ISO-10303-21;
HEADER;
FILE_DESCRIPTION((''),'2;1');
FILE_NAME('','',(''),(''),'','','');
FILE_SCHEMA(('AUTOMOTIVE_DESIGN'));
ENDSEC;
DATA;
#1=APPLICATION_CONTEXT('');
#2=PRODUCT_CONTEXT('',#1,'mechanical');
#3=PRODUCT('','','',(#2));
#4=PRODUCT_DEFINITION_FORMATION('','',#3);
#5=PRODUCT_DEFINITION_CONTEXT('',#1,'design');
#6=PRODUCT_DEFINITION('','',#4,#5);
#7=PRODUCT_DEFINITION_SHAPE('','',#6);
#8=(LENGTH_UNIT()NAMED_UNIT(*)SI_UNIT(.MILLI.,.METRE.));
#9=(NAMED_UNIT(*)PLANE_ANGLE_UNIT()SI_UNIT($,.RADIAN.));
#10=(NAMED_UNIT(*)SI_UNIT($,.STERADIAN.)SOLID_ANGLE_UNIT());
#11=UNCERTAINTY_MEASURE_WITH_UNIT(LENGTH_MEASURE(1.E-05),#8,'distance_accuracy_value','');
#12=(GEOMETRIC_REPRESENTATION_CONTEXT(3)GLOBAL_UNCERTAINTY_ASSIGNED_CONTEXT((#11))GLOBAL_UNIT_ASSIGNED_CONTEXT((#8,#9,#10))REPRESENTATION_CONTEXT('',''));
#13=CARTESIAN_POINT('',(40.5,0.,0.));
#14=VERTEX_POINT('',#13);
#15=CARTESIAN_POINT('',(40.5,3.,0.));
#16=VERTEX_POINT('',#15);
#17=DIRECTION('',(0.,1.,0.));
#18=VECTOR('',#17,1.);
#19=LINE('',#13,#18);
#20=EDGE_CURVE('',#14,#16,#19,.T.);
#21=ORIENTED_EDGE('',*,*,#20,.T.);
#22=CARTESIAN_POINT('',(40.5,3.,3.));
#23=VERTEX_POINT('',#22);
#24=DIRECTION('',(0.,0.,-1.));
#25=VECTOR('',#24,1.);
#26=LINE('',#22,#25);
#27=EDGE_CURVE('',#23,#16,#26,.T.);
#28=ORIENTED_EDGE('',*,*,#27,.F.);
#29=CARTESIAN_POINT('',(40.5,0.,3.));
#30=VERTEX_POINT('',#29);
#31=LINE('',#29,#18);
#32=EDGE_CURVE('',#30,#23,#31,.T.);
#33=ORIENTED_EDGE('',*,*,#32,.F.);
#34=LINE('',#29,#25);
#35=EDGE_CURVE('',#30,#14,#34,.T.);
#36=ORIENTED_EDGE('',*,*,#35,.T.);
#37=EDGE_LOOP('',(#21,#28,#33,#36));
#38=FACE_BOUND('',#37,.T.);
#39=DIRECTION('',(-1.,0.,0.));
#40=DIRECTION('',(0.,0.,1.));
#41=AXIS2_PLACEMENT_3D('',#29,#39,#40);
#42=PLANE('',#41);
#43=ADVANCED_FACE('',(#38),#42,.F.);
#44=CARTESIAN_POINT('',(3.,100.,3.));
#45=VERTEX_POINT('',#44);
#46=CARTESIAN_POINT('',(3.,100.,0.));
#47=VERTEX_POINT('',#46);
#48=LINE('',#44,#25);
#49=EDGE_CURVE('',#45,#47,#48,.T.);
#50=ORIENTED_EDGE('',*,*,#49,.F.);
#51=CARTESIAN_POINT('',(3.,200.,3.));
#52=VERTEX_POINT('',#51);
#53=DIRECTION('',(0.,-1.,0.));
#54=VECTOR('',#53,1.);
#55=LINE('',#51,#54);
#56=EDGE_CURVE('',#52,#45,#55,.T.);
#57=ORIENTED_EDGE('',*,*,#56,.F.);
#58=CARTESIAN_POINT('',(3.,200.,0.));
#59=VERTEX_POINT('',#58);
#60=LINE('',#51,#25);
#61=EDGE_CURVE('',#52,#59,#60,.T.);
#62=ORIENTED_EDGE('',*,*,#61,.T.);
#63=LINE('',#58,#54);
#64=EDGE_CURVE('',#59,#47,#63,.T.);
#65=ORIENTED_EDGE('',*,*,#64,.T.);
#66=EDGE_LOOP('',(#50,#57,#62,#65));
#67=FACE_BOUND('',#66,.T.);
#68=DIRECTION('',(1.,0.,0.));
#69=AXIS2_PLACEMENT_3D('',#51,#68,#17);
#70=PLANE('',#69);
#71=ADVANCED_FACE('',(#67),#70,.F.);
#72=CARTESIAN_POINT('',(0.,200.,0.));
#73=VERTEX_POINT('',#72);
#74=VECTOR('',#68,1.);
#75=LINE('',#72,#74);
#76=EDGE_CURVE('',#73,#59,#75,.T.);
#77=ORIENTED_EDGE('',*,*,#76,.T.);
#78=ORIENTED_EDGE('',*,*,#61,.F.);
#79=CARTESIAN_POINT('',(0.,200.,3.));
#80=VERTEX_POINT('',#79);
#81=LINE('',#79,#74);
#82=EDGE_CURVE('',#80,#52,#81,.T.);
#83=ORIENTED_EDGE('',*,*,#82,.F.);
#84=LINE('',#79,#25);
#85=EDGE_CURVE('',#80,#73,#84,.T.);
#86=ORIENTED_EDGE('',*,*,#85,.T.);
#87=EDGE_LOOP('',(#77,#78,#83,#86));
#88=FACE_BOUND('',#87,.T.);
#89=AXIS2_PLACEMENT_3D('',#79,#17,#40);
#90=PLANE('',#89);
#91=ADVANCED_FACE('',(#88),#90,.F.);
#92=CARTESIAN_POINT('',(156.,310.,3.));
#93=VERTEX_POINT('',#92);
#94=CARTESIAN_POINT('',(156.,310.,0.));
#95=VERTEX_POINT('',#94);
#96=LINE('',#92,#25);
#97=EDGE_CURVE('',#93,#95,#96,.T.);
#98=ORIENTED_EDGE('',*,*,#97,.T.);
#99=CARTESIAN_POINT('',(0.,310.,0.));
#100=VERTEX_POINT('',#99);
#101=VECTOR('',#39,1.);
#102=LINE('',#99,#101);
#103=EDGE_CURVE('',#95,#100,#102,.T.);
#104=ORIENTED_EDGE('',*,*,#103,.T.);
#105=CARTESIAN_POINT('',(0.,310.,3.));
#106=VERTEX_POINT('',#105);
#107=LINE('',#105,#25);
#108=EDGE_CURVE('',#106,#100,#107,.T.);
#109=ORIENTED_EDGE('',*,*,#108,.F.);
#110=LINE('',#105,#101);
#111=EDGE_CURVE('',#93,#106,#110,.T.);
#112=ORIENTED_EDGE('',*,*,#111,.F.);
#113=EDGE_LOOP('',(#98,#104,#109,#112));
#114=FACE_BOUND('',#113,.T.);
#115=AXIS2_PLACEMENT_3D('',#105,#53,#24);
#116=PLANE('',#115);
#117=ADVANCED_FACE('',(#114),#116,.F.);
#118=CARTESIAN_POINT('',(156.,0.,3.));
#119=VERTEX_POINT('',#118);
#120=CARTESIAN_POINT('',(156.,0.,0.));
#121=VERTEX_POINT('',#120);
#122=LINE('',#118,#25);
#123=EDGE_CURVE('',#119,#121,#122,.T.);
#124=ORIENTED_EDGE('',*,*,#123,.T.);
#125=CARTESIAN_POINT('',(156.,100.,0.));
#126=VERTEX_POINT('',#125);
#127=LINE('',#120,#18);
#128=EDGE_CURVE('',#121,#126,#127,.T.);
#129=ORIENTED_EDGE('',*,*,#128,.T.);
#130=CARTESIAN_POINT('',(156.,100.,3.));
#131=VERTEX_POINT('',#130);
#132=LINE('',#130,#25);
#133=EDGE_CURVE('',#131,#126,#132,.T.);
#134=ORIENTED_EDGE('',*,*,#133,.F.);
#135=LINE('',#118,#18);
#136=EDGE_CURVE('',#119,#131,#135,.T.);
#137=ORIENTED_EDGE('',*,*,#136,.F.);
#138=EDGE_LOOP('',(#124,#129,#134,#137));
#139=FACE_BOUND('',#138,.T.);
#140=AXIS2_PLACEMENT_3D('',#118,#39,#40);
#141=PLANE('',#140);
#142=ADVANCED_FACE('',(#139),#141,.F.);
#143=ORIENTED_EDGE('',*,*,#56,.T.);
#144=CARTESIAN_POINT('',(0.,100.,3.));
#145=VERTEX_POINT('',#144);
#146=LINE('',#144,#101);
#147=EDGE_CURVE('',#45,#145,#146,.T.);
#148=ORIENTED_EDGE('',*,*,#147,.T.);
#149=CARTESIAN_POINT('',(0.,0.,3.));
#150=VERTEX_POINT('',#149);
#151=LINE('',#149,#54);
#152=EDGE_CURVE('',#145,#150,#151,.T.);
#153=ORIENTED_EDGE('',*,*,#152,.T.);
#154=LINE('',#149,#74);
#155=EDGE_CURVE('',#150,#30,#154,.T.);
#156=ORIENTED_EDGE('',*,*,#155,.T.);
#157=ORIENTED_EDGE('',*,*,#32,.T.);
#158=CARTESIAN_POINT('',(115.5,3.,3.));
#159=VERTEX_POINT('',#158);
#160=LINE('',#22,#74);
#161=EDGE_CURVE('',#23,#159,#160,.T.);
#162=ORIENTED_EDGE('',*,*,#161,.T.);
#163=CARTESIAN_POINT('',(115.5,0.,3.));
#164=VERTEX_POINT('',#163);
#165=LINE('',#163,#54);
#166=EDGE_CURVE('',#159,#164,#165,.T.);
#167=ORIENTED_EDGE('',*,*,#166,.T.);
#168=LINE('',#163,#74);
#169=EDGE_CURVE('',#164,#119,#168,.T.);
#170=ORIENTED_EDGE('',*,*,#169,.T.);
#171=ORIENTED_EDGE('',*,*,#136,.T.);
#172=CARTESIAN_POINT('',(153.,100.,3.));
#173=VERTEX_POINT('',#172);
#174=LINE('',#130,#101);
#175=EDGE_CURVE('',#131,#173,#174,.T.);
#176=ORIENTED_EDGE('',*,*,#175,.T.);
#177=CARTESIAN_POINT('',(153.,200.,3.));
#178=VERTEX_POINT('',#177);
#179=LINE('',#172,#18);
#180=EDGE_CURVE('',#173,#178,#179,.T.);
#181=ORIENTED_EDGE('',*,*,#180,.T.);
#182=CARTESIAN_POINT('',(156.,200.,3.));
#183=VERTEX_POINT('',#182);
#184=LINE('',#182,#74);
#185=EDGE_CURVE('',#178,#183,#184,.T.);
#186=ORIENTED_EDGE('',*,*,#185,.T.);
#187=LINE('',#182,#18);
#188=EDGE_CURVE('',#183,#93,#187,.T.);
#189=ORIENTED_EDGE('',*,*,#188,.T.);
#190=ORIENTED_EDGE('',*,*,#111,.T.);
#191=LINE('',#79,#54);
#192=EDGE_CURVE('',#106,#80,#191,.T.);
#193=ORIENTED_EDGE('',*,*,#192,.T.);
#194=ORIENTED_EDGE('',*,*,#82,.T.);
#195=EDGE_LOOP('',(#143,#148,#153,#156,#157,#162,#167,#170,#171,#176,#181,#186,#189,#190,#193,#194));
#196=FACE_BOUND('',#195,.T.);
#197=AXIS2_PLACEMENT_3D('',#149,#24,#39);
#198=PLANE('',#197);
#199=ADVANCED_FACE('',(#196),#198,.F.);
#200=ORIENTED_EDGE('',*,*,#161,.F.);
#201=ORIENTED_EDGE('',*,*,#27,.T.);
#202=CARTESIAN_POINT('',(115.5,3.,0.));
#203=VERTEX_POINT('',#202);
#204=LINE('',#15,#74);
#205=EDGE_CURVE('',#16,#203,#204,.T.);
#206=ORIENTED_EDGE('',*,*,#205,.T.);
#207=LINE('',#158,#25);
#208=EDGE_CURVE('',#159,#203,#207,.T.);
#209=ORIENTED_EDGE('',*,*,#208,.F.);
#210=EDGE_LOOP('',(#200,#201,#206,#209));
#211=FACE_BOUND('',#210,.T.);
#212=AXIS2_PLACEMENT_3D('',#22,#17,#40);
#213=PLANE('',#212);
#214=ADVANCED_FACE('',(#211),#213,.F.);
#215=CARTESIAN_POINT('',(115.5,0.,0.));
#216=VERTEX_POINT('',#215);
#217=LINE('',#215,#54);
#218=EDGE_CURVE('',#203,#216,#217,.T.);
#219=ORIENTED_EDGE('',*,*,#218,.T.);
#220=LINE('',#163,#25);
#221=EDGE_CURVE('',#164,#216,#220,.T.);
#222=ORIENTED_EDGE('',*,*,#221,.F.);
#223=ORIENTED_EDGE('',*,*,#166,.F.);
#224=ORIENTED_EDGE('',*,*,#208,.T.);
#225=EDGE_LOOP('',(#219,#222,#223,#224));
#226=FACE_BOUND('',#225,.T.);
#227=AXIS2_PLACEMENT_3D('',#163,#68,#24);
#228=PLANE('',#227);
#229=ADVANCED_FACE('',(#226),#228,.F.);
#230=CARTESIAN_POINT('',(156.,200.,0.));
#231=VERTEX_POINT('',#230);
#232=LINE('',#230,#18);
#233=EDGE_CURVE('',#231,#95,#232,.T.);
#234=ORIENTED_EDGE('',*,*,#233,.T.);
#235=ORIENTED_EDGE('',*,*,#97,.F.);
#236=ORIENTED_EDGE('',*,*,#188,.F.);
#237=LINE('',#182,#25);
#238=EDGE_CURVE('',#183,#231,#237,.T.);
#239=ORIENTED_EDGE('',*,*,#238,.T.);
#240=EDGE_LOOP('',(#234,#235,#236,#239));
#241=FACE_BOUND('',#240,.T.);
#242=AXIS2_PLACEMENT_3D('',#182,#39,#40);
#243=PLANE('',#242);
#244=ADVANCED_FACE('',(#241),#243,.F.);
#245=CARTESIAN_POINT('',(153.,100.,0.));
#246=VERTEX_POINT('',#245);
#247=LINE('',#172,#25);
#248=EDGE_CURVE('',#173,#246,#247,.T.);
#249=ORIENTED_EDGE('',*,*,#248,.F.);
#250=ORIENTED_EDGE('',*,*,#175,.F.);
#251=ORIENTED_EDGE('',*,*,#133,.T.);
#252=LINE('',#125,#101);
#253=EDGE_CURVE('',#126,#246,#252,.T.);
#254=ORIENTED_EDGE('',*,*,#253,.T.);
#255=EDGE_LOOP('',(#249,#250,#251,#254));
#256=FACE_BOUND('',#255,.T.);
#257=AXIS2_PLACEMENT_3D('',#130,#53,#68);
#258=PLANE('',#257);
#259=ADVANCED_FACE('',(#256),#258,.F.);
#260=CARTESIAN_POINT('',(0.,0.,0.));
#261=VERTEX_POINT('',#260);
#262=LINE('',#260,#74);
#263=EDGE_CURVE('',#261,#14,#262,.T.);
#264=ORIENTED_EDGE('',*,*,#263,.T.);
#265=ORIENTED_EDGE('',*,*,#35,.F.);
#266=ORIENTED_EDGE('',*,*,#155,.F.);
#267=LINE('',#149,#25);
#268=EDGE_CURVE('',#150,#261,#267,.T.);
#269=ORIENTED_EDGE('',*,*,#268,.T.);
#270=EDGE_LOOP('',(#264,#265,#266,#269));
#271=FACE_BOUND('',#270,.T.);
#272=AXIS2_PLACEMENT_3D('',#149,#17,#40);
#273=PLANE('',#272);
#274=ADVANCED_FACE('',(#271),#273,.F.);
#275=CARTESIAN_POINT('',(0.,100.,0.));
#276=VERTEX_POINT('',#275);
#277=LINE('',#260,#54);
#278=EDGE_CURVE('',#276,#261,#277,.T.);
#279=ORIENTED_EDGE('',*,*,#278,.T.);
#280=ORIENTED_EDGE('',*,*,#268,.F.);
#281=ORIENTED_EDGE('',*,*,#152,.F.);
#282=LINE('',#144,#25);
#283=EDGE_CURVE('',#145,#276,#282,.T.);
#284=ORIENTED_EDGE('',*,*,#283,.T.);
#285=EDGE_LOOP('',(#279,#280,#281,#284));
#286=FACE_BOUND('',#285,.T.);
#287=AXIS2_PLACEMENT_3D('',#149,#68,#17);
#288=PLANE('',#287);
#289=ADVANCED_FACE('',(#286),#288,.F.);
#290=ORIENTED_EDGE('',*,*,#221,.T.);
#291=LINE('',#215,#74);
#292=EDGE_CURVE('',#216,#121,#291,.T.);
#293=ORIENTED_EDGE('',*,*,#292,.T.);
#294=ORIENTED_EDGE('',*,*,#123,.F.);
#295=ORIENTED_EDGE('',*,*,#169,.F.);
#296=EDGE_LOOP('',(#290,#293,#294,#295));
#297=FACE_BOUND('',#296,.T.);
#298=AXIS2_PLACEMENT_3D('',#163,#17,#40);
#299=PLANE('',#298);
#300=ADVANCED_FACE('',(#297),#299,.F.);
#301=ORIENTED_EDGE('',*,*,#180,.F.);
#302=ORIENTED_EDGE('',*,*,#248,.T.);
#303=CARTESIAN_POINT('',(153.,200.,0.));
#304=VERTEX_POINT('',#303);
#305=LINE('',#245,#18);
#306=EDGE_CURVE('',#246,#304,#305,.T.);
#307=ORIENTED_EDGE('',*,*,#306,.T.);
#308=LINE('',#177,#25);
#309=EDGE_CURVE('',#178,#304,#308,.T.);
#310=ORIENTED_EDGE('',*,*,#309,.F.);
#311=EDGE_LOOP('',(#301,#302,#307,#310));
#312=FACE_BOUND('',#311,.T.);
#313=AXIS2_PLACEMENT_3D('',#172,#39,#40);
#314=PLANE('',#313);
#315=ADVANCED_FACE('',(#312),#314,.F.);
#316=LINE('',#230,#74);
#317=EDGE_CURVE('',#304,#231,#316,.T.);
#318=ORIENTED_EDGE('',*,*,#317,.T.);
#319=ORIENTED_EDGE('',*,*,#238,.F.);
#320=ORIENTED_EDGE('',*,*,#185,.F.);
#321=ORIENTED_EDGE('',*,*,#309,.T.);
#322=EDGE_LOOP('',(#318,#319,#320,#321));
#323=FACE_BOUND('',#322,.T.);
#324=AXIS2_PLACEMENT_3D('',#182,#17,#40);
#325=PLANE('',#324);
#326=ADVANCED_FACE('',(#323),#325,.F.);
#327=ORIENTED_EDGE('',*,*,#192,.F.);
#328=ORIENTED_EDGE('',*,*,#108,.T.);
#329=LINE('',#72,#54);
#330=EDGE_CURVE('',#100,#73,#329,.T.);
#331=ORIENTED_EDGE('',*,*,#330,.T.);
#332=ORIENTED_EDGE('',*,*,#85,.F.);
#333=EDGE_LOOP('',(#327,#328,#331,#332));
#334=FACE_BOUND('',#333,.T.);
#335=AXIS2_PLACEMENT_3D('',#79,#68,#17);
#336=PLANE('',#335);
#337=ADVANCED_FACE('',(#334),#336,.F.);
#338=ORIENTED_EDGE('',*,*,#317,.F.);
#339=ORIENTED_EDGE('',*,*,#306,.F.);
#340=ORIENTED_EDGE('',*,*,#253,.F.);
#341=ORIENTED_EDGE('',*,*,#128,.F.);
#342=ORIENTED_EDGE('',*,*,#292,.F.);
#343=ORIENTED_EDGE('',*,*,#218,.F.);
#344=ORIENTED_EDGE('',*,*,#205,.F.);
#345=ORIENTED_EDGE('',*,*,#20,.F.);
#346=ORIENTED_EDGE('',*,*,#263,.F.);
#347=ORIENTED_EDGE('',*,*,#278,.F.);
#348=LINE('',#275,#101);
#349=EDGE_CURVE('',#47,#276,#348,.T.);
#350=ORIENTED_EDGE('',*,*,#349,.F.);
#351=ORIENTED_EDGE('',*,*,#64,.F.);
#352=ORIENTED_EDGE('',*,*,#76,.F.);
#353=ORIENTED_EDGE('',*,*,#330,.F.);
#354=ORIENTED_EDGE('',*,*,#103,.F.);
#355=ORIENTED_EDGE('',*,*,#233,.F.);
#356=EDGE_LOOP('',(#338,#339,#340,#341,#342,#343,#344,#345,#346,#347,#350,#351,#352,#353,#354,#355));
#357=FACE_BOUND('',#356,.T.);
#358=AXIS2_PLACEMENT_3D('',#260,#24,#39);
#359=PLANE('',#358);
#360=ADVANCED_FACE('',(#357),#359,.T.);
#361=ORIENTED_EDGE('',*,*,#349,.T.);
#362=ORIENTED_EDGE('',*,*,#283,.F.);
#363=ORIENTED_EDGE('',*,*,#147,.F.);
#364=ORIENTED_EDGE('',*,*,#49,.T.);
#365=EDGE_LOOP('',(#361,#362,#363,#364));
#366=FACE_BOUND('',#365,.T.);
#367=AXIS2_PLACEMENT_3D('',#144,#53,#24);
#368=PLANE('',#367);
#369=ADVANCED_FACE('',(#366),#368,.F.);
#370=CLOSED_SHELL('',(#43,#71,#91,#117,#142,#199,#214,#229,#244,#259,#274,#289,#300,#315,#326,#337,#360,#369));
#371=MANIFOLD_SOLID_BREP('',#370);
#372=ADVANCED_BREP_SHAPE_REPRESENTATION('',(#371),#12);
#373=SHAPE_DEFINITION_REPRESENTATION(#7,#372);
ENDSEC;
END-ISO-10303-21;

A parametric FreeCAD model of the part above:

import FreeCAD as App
import Part
import Sketcher
Q = App.Units.Quantity


def add_polygon(sketch, points):
    """Adds a closed chain of lines whose ends are joined by coincident constraints."""
    first, n = sketch.GeometryCount, len(points)
    for a, b in zip(points, points[1:] + points[:1]):
        sketch.addGeometry(Part.LineSegment(App.Vector(*a, 0), App.Vector(*b, 0)), False)
    for i in range(n):
        sketch.addConstraint(Sketcher.Constraint("Coincident", first + i, 2, first + (i + 1) % n, 1))

doc = App.newDocument("Part")
params = doc.addObject("Spreadsheet::Sheet", "Params")
for row, (alias, value) in enumerate([
    ("sketch1_width", "3 mm"),
    ("sketch1_width2", "75 mm"),
    ("sketch1_width3", "156 mm"),
    ("sketch1_height", "110 mm"),
    ("sketch1_height2", "100 mm"),
    ("pad1_length", "3 mm"),
], start=1):
    params.set(f"A{row}", alias)
    params.set(f"B{row}", "=" + value)
    params.setAlias(f"B{row}", alias)

body = doc.addObject("PartDesign::Body", "Body")

# Sketch on XY plane
sketch1 = body.newObject("Sketcher::SketchObject", "Sketch")
sketch1.AttachmentSupport = (doc.getObject("XY_Plane"), [""])
sketch1.MapMode = "FlatFace"
add_polygon(sketch1, [(0, 310), (0, 200), (3, 200), (3, 100), (0, 100), (0, 0), (40.5, 0), (40.5, 3), (115.5, 3), (115.5, 0), (156, 0), (156, 100), (153, 100), (153, 200), (156, 200), (156, 310)])  # lines 0-15
sketch1.addConstraint(Sketcher.Constraint("Vertical", 0))
sketch1.addConstraint(Sketcher.Constraint("Horizontal", 1))
sketch1.addConstraint(Sketcher.Constraint("Vertical", 2))
sketch1.addConstraint(Sketcher.Constraint("Horizontal", 3))
sketch1.addConstraint(Sketcher.Constraint("Vertical", 4))
sketch1.addConstraint(Sketcher.Constraint("Horizontal", 5))
sketch1.addConstraint(Sketcher.Constraint("Vertical", 6))
sketch1.addConstraint(Sketcher.Constraint("Horizontal", 7))
sketch1.addConstraint(Sketcher.Constraint("Vertical", 8))
sketch1.addConstraint(Sketcher.Constraint("Horizontal", 9))
sketch1.addConstraint(Sketcher.Constraint("Vertical", 10))
sketch1.addConstraint(Sketcher.Constraint("Horizontal", 11))
sketch1.addConstraint(Sketcher.Constraint("Vertical", 12))
sketch1.addConstraint(Sketcher.Constraint("Horizontal", 13))
sketch1.addConstraint(Sketcher.Constraint("Vertical", 14))
sketch1.addConstraint(Sketcher.Constraint("Horizontal", 15))
sketch1.addConstraint(Sketcher.Constraint("Coincident", 4, 2, -1, 1))
sketch1.addConstraint(Sketcher.Constraint("PointOnObject", 0, 2, -2))
sketch1.addConstraint(Sketcher.Constraint("PointOnObject", 8, 2, -1))
sketch1.addConstraint(Sketcher.Constraint("Horizontal", 3, 2, 10, 2))
sketch1.addConstraint(Sketcher.Constraint("Horizontal", 1, 2, 12, 2))
sketch1.addConstraint(Sketcher.Constraint("Vertical", 10, 2, 13, 2))
sketch1.addConstraint(Sketcher.Constraint("Equal", 5, 9))
sketch1.addConstraint(Sketcher.Constraint("Equal", 3, 11))
sketch1.addConstraint(Sketcher.Constraint("Equal", 2, 4))
sketch1.addConstraint(Sketcher.Constraint("Equal", 13, 6))
sketch1.addConstraint(Sketcher.Constraint("DistanceX", 1, 1, 1, 2, Q("3 mm")))
sketch1.addConstraint(Sketcher.Constraint("DistanceX", 7, 1, 7, 2, Q("75 mm")))
sketch1.addConstraint(Sketcher.Constraint("DistanceX", 15, 2, 15, 1, Q("156 mm")))
sketch1.addConstraint(Sketcher.Constraint("DistanceY", 0, 2, 0, 1, Q("110 mm")))
sketch1.addConstraint(Sketcher.Constraint("DistanceY", 2, 2, 2, 1, Q("100 mm")))
sketch1.setExpression("Constraints[42]", "Params.sketch1_width")
sketch1.setExpression("Constraints[43]", "Params.sketch1_width2")
sketch1.setExpression("Constraints[44]", "Params.sketch1_width3")
sketch1.setExpression("Constraints[45]", "Params.sketch1_height")
sketch1.setExpression("Constraints[46]", "Params.sketch1_height2")
pad1 = body.newObject("PartDesign::Pad", "Pad")
pad1.Profile = sketch1
pad1.setExpression("Length", "Params.pad1_length")

doc.recompute()
